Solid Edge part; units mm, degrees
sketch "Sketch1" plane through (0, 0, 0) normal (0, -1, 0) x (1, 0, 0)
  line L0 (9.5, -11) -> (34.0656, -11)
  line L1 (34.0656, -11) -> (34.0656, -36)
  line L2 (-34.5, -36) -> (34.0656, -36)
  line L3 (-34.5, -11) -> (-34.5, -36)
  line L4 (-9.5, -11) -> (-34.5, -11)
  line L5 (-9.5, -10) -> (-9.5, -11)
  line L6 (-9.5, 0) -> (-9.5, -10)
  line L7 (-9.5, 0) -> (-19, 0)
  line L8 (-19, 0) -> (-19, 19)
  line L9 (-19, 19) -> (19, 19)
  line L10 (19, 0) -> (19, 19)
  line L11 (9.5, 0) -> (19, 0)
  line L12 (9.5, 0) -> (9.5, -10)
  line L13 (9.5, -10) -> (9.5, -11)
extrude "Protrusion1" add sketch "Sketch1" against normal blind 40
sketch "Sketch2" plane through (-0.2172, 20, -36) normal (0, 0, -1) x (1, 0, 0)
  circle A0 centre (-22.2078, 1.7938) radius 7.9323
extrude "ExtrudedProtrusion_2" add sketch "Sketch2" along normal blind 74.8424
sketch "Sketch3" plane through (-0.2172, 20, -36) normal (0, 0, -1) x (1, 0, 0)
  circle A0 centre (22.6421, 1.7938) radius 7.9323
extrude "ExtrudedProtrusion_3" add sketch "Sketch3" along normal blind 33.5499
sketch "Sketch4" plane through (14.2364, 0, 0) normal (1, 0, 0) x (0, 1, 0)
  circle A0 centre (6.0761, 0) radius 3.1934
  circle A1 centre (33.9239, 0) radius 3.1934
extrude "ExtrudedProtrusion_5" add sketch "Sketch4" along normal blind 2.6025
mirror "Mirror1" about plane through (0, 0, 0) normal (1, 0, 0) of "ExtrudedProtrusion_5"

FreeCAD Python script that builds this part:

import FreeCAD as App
import Part
import Sketcher
from FreeCAD import Vector

doc = App.newDocument("Part")
body = doc.addObject("PartDesign::Body", "Body")

# Sketch on XZ plane
sketch1 = body.newObject("Sketcher::SketchObject", "Sketch")
sketch1.AttachmentSupport = (doc.getObject("XZ_Plane"), [""])
sketch1.MapMode = "FlatFace"
sketch1.addGeometry([
    Part.LineSegment(Vector(34.0656, -11, 0), Vector(9.5, -11, 0)),  # 0
    Part.LineSegment(Vector(9.5, -11, 0), Vector(9.5, 0, 0)),  # 1
    Part.LineSegment(Vector(9.5, 0, 0), Vector(19, 0, 0)),  # 2
    Part.LineSegment(Vector(19, 0, 0), Vector(19, 19, 0)),  # 3
    Part.LineSegment(Vector(19, 19, 0), Vector(-19, 19, 0)),  # 4
    Part.LineSegment(Vector(-19, 19, 0), Vector(-19, 0, 0)),  # 5
    Part.LineSegment(Vector(-19, 0, 0), Vector(-9.5, 0, 0)),  # 6
    Part.LineSegment(Vector(-9.5, 0, 0), Vector(-9.5, -11, 0)),  # 7
    Part.LineSegment(Vector(-9.5, -11, 0), Vector(-34.5, -11, 0)),  # 8
    Part.LineSegment(Vector(-34.5, -11, 0), Vector(-34.5, -36, 0)),  # 9
    Part.LineSegment(Vector(-34.5, -36, 0), Vector(34.0656, -36, 0)),  # 10
    Part.LineSegment(Vector(34.0656, -36, 0), Vector(34.0656, -11, 0)),  # 11
], False)
sketch1.addConstraint([
    Sketcher.Constraint("Coincident", 0, 2, 1, 1),
    Sketcher.Constraint("Coincident", 1, 2, 2, 1),
    Sketcher.Constraint("Coincident", 2, 2, 3, 1),
    Sketcher.Constraint("Coincident", 3, 2, 4, 1),
    Sketcher.Constraint("Coincident", 4, 2, 5, 1),
    Sketcher.Constraint("Coincident", 5, 2, 6, 1),
    Sketcher.Constraint("Coincident", 6, 2, 7, 1),
    Sketcher.Constraint("Coincident", 7, 2, 8, 1),
    Sketcher.Constraint("Coincident", 8, 2, 9, 1),
    Sketcher.Constraint("Coincident", 9, 2, 10, 1),
    Sketcher.Constraint("Coincident", 10, 2, 11, 1),
    Sketcher.Constraint("Coincident", 11, 2, 0, 1),
    Sketcher.Constraint("Horizontal", 0),
    Sketcher.Constraint("Vertical", 1),
    Sketcher.Constraint("Horizontal", 2),
    Sketcher.Constraint("Vertical", 3),
    Sketcher.Constraint("Horizontal", 4),
    Sketcher.Constraint("Vertical", 5),
    Sketcher.Constraint("Horizontal", 6),
    Sketcher.Constraint("Vertical", 7),
    Sketcher.Constraint("Horizontal", 8),
    Sketcher.Constraint("Vertical", 9),
    Sketcher.Constraint("Horizontal", 10),
    Sketcher.Constraint("Vertical", 11),
    Sketcher.Constraint("Symmetric", 2, 2, 5, 2, -1, 1),
    Sketcher.Constraint("Symmetric", 1, 2, 6, 2, -2),
    Sketcher.Constraint("Horizontal", 0, 2, 7, 2),
    Sketcher.Constraint("Equal", 8, 9),
    Sketcher.Constraint("DistanceX", 4, 2, 4, 1, 38.0),
    Sketcher.Constraint("DistanceX", 8, 2, 8, 1, 25.0),
    Sketcher.Constraint("DistanceY", 1, 1, 1, 2, 11.0),
    Sketcher.Constraint("DistanceY", 3, 1, 3, 2, 19.0),
    Sketcher.Constraint("DistanceX", 2, 1, 2, 2, 9.5),
    Sketcher.Constraint("DistanceX", 0, 2, 0, 1, 24.5656),
])
pad1 = body.newObject("PartDesign::Pad", "Pad")
pad1.Profile = sketch1
pad1.Length = 40
pad1.Reversed = True

# Sketch on XY plane
sketch2 = body.newObject("Sketcher::SketchObject", "Sketch001")
sketch2.AttachmentSupport = (doc.getObject("XY_Plane"), [""])
sketch2.MapMode = "FlatFace"
sketch2.AttachmentOffset = App.Placement(Vector(0, 0, -36), App.Rotation())
sketch2.addGeometry(Part.Circle(Vector(-22.425, 18.2062, 0), Vector(0, 0, 1), 7.9323), False)
sketch2.addConstraint([
    Sketcher.Constraint("Diameter", 0, 15.8646),
    Sketcher.Constraint("DistanceX", 0, 3, -1, 1, 22.425),
    Sketcher.Constraint("DistanceY", -1, 1, 0, 3, 18.2062),
])
pad2 = body.newObject("PartDesign::Pad", "Pad001")
pad2.Profile = sketch2
pad2.Length = 74.8424
pad2.Reversed = True

# Sketch on XY plane
sketch3 = body.newObject("Sketcher::SketchObject", "Sketch002")
sketch3.AttachmentSupport = (doc.getObject("XY_Plane"), [""])
sketch3.MapMode = "FlatFace"
sketch3.AttachmentOffset = App.Placement(Vector(0, 0, -36), App.Rotation())
sketch3.addGeometry(Part.Circle(Vector(22.4249, 18.2062, 0), Vector(0, 0, 1), 7.9323), False)
sketch3.addConstraint([
    Sketcher.Constraint("Diameter", 0, 15.8646),
    Sketcher.Constraint("DistanceX", -1, 1, 0, 3, 22.425),
    Sketcher.Constraint("DistanceY", -1, 1, 0, 3, 18.2062),
])
pad3 = body.newObject("PartDesign::Pad", "Pad002")
pad3.Profile = sketch3
pad3.Length = 33.5499
pad3.Reversed = True

# Sketch on YZ plane
sketch4 = body.newObject("Sketcher::SketchObject", "Sketch003")
sketch4.AttachmentSupport = (doc.getObject("YZ_Plane"), [""])
sketch4.MapMode = "FlatFace"
sketch4.AttachmentOffset = App.Placement(Vector(0, 0, 14.2364), App.Rotation())
sketch4.addGeometry([
    Part.Circle(Vector(6.0761, 0, 0), Vector(0, 0, 1), 3.1934),
    Part.Circle(Vector(33.9239, 0, 0), Vector(0, 0, 1), 3.1934),
], False)
sketch4.addConstraint([
    Sketcher.Constraint("Equal", 0, 1),
    Sketcher.Constraint("PointOnObject", 0, 3, -1),
    Sketcher.Constraint("PointOnObject", 1, 3, -1),
    Sketcher.Constraint("Diameter", 0, 6.3868),
    Sketcher.Constraint("DistanceX", -1, 1, 0, 3, 6.076),
    Sketcher.Constraint("DistanceX", -1, 1, 1, 3, 33.924),
])
pad4 = body.newObject("PartDesign::Pad", "Pad003")
pad4.Profile = sketch4
pad4.Length = 2.6025
doc.recompute()

mirrored = body.newObject("PartDesign::Mirrored", "Mirrored")
mirrored.Originals = [pad4]
mirrored.MirrorPlane = (doc.getObject("YZ_Plane"), [""])
body.Tip = mirrored

doc.recompute()
